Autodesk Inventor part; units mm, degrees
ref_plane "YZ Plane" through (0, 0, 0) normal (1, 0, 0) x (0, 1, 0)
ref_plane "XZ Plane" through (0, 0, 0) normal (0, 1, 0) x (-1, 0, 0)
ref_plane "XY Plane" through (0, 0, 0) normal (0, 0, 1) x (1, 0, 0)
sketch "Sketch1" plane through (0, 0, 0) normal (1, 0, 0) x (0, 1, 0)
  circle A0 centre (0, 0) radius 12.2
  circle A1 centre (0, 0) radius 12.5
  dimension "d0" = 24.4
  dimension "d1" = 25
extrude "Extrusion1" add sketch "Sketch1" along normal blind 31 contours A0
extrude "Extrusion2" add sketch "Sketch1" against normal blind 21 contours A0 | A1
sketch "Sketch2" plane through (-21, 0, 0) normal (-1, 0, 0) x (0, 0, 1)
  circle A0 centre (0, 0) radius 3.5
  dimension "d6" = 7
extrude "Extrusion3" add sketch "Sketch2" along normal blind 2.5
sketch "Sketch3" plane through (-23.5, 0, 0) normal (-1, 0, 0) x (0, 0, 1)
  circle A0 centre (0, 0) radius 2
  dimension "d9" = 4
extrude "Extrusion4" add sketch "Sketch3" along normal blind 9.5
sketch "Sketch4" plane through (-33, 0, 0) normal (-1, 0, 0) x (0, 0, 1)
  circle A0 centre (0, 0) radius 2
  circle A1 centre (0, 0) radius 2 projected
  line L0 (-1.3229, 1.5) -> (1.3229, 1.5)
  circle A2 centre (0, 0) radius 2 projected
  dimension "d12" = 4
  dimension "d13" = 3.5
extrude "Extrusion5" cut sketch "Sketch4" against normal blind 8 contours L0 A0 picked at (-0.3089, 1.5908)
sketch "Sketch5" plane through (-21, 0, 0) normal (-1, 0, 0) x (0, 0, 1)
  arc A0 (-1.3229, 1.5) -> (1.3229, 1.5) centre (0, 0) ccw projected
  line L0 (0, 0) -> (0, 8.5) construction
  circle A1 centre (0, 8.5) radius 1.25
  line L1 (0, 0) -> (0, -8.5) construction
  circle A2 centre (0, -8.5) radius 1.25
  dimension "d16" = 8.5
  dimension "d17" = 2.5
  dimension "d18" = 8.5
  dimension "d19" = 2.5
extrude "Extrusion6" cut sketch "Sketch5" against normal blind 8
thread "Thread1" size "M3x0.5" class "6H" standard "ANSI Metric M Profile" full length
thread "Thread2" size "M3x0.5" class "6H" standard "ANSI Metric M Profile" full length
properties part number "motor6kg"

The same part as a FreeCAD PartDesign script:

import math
import FreeCAD as App
import Part
import Sketcher

V = App.Vector

doc = App.newDocument("Part")
params = doc.addObject("Spreadsheet::Sheet", "Params")
for row, (alias, value) in enumerate([
    ("sketch1_diameter", "24.4 mm"),
    ("pad1_length", "31 mm"),
    ("sketch2_diameter", "25 mm"),
    ("pad2_length", "21 mm"),
    ("sketch3_diameter", "7 mm"),
    ("pad3_length", "2.5 mm"),
    ("sketch4_diameter", "4 mm"),
    ("pad4_length", "9.5 mm"),
    ("sketch5_radius", "2 mm"),
    ("pocket1_length", "8 mm"),
    ("sketch6_diameter", "2.5 mm"),
    ("pocket2_length", "8 mm"),
], start=1):
    params.set(f"A{row}", alias)
    params.set(f"B{row}", "=" + value)
    params.setAlias(f"B{row}", alias)

body = doc.addObject("PartDesign::Body", "Body")

sketch1 = body.newObject("Sketcher::SketchObject", "Sketch")
sketch1.AttachmentSupport = (doc.getObject("YZ_Plane"), [""])
sketch1.MapMode = "FlatFace"
sketch1.addGeometry(Part.Circle(V(0, 0, 0), V(0, 0, 1), 12), False)
sketch1.addConstraint([
    Sketcher.Constraint("Coincident", 0, 3, -1, 1),
    Sketcher.Constraint("Diameter", 0, 24.4),
])
sketch1.setExpression("Constraints[1]", "Params.sketch1_diameter")
pad1 = body.newObject("PartDesign::Pad", "Pad")
pad1.Profile = sketch1
pad1.setExpression("Length", "Params.pad1_length")

sketch2 = body.newObject("Sketcher::SketchObject", "Sketch001")
sketch2.AttachmentSupport = (doc.getObject("YZ_Plane"), [""])
sketch2.MapMode = "FlatFace"
sketch2.addGeometry(Part.Circle(V(0, 0, 0), V(0, 0, 1), 12), False)
sketch2.addConstraint([
    Sketcher.Constraint("Coincident", 0, 3, -1, 1),
    Sketcher.Constraint("Diameter", 0, 25.0),
])
sketch2.setExpression("Constraints[1]", "Params.sketch2_diameter")
pad2 = body.newObject("PartDesign::Pad", "Pad001")
pad2.Profile = sketch2
pad2.setExpression("Length", "Params.pad2_length")
pad2.Reversed = True

sketch3 = body.newObject("Sketcher::SketchObject", "Sketch002")
sketch3.AttachmentSupport = (doc.getObject("YZ_Plane"), [""])
sketch3.MapMode = "FlatFace"
sketch3.AttachmentOffset = App.Placement(V(0, 0, -21), App.Rotation())
sketch3.addGeometry(Part.Circle(V(0, 0, 0), V(0, 0, 1), 3.5), False)
sketch3.addConstraint([
    Sketcher.Constraint("Coincident", 0, 3, -1, 1),
    Sketcher.Constraint("Diameter", 0, 7.0),
])
sketch3.setExpression("Constraints[1]", "Params.sketch3_diameter")
pad3 = body.newObject("PartDesign::Pad", "Pad002")
pad3.Profile = sketch3
pad3.setExpression("Length", "Params.pad3_length")
pad3.Reversed = True

sketch4 = body.newObject("Sketcher::SketchObject", "Sketch003")
sketch4.AttachmentSupport = (doc.getObject("YZ_Plane"), [""])
sketch4.MapMode = "FlatFace"
sketch4.AttachmentOffset = App.Placement(V(0, 0, -23.5), App.Rotation())
sketch4.addGeometry(Part.Circle(V(0, 0, 0), V(0, 0, 1), 2), False)
sketch4.addConstraint([
    Sketcher.Constraint("Coincident", 0, 3, -1, 1),
    Sketcher.Constraint("Diameter", 0, 4.0),
])
sketch4.setExpression("Constraints[1]", "Params.sketch4_diameter")
pad4 = body.newObject("PartDesign::Pad", "Pad003")
pad4.Profile = sketch4
pad4.setExpression("Length", "Params.pad4_length")
pad4.Reversed = True

sketch5 = body.newObject("Sketcher::SketchObject", "Sketch004")
sketch5.AttachmentSupport = (doc.getObject("YZ_Plane"), [""])
sketch5.MapMode = "FlatFace"
sketch5.AttachmentOffset = App.Placement(V(0, 0, -33), App.Rotation())
sketch5.addGeometry([
    Part.LineSegment(V(1.5, -1.3, 0), V(1.5, 1.3, 0)),
    Part.ArcOfCircle(Part.Circle(V(0, 0, 0), V(0, 0, 1), 2), math.radians(-41), math.radians(41)),
], False)
sketch5.addConstraint([
    Sketcher.Constraint("Coincident", 0, 1, 1, 1),
    Sketcher.Constraint("Coincident", 1, 2, 0, 2),
    Sketcher.Constraint("Vertical", 0),
    Sketcher.Constraint("Coincident", 1, 3, -1, 1),
    Sketcher.Constraint("Radius", 1, 2.0),
    Sketcher.Constraint("DistanceX", -1, 1, 0, 1, 1.5),
])
sketch5.setExpression("Constraints[4]", "Params.sketch5_radius")
pocket1 = body.newObject("PartDesign::Pocket", "Pocket")
pocket1.Profile = sketch5
pocket1.setExpression("Length", "Params.pocket1_length")
pocket1.Reversed = True

sketch6 = body.newObject("Sketcher::SketchObject", "Sketch005")
sketch6.AttachmentSupport = (doc.getObject("YZ_Plane"), [""])
sketch6.MapMode = "FlatFace"
sketch6.AttachmentOffset = App.Placement(V(0, 0, -21), App.Rotation())
sketch6.addGeometry([
    Part.Circle(V(8.5, 0, 0), V(0, 0, 1), 1.2),
    Part.Circle(V(-8.5, 0, 0), V(0, 0, 1), 1.2),
], False)
sketch6.addConstraint([
    Sketcher.Constraint("Equal", 0, 1),
    Sketcher.Constraint("Symmetric", 0, 3, 1, 3, -1, 1),
    Sketcher.Constraint("PointOnObject", 0, 3, -1),
    Sketcher.Constraint("Diameter", 0, 2.5),
    Sketcher.Constraint("DistanceX", -1, 1, 0, 3, 8.5),
])
sketch6.setExpression("Constraints[3]", "Params.sketch6_diameter")
pocket2 = body.newObject("PartDesign::Pocket", "Pocket001")
pocket2.Profile = sketch6
pocket2.setExpression("Length", "Params.pocket2_length")
pocket2.Reversed = True

doc.recompute()
